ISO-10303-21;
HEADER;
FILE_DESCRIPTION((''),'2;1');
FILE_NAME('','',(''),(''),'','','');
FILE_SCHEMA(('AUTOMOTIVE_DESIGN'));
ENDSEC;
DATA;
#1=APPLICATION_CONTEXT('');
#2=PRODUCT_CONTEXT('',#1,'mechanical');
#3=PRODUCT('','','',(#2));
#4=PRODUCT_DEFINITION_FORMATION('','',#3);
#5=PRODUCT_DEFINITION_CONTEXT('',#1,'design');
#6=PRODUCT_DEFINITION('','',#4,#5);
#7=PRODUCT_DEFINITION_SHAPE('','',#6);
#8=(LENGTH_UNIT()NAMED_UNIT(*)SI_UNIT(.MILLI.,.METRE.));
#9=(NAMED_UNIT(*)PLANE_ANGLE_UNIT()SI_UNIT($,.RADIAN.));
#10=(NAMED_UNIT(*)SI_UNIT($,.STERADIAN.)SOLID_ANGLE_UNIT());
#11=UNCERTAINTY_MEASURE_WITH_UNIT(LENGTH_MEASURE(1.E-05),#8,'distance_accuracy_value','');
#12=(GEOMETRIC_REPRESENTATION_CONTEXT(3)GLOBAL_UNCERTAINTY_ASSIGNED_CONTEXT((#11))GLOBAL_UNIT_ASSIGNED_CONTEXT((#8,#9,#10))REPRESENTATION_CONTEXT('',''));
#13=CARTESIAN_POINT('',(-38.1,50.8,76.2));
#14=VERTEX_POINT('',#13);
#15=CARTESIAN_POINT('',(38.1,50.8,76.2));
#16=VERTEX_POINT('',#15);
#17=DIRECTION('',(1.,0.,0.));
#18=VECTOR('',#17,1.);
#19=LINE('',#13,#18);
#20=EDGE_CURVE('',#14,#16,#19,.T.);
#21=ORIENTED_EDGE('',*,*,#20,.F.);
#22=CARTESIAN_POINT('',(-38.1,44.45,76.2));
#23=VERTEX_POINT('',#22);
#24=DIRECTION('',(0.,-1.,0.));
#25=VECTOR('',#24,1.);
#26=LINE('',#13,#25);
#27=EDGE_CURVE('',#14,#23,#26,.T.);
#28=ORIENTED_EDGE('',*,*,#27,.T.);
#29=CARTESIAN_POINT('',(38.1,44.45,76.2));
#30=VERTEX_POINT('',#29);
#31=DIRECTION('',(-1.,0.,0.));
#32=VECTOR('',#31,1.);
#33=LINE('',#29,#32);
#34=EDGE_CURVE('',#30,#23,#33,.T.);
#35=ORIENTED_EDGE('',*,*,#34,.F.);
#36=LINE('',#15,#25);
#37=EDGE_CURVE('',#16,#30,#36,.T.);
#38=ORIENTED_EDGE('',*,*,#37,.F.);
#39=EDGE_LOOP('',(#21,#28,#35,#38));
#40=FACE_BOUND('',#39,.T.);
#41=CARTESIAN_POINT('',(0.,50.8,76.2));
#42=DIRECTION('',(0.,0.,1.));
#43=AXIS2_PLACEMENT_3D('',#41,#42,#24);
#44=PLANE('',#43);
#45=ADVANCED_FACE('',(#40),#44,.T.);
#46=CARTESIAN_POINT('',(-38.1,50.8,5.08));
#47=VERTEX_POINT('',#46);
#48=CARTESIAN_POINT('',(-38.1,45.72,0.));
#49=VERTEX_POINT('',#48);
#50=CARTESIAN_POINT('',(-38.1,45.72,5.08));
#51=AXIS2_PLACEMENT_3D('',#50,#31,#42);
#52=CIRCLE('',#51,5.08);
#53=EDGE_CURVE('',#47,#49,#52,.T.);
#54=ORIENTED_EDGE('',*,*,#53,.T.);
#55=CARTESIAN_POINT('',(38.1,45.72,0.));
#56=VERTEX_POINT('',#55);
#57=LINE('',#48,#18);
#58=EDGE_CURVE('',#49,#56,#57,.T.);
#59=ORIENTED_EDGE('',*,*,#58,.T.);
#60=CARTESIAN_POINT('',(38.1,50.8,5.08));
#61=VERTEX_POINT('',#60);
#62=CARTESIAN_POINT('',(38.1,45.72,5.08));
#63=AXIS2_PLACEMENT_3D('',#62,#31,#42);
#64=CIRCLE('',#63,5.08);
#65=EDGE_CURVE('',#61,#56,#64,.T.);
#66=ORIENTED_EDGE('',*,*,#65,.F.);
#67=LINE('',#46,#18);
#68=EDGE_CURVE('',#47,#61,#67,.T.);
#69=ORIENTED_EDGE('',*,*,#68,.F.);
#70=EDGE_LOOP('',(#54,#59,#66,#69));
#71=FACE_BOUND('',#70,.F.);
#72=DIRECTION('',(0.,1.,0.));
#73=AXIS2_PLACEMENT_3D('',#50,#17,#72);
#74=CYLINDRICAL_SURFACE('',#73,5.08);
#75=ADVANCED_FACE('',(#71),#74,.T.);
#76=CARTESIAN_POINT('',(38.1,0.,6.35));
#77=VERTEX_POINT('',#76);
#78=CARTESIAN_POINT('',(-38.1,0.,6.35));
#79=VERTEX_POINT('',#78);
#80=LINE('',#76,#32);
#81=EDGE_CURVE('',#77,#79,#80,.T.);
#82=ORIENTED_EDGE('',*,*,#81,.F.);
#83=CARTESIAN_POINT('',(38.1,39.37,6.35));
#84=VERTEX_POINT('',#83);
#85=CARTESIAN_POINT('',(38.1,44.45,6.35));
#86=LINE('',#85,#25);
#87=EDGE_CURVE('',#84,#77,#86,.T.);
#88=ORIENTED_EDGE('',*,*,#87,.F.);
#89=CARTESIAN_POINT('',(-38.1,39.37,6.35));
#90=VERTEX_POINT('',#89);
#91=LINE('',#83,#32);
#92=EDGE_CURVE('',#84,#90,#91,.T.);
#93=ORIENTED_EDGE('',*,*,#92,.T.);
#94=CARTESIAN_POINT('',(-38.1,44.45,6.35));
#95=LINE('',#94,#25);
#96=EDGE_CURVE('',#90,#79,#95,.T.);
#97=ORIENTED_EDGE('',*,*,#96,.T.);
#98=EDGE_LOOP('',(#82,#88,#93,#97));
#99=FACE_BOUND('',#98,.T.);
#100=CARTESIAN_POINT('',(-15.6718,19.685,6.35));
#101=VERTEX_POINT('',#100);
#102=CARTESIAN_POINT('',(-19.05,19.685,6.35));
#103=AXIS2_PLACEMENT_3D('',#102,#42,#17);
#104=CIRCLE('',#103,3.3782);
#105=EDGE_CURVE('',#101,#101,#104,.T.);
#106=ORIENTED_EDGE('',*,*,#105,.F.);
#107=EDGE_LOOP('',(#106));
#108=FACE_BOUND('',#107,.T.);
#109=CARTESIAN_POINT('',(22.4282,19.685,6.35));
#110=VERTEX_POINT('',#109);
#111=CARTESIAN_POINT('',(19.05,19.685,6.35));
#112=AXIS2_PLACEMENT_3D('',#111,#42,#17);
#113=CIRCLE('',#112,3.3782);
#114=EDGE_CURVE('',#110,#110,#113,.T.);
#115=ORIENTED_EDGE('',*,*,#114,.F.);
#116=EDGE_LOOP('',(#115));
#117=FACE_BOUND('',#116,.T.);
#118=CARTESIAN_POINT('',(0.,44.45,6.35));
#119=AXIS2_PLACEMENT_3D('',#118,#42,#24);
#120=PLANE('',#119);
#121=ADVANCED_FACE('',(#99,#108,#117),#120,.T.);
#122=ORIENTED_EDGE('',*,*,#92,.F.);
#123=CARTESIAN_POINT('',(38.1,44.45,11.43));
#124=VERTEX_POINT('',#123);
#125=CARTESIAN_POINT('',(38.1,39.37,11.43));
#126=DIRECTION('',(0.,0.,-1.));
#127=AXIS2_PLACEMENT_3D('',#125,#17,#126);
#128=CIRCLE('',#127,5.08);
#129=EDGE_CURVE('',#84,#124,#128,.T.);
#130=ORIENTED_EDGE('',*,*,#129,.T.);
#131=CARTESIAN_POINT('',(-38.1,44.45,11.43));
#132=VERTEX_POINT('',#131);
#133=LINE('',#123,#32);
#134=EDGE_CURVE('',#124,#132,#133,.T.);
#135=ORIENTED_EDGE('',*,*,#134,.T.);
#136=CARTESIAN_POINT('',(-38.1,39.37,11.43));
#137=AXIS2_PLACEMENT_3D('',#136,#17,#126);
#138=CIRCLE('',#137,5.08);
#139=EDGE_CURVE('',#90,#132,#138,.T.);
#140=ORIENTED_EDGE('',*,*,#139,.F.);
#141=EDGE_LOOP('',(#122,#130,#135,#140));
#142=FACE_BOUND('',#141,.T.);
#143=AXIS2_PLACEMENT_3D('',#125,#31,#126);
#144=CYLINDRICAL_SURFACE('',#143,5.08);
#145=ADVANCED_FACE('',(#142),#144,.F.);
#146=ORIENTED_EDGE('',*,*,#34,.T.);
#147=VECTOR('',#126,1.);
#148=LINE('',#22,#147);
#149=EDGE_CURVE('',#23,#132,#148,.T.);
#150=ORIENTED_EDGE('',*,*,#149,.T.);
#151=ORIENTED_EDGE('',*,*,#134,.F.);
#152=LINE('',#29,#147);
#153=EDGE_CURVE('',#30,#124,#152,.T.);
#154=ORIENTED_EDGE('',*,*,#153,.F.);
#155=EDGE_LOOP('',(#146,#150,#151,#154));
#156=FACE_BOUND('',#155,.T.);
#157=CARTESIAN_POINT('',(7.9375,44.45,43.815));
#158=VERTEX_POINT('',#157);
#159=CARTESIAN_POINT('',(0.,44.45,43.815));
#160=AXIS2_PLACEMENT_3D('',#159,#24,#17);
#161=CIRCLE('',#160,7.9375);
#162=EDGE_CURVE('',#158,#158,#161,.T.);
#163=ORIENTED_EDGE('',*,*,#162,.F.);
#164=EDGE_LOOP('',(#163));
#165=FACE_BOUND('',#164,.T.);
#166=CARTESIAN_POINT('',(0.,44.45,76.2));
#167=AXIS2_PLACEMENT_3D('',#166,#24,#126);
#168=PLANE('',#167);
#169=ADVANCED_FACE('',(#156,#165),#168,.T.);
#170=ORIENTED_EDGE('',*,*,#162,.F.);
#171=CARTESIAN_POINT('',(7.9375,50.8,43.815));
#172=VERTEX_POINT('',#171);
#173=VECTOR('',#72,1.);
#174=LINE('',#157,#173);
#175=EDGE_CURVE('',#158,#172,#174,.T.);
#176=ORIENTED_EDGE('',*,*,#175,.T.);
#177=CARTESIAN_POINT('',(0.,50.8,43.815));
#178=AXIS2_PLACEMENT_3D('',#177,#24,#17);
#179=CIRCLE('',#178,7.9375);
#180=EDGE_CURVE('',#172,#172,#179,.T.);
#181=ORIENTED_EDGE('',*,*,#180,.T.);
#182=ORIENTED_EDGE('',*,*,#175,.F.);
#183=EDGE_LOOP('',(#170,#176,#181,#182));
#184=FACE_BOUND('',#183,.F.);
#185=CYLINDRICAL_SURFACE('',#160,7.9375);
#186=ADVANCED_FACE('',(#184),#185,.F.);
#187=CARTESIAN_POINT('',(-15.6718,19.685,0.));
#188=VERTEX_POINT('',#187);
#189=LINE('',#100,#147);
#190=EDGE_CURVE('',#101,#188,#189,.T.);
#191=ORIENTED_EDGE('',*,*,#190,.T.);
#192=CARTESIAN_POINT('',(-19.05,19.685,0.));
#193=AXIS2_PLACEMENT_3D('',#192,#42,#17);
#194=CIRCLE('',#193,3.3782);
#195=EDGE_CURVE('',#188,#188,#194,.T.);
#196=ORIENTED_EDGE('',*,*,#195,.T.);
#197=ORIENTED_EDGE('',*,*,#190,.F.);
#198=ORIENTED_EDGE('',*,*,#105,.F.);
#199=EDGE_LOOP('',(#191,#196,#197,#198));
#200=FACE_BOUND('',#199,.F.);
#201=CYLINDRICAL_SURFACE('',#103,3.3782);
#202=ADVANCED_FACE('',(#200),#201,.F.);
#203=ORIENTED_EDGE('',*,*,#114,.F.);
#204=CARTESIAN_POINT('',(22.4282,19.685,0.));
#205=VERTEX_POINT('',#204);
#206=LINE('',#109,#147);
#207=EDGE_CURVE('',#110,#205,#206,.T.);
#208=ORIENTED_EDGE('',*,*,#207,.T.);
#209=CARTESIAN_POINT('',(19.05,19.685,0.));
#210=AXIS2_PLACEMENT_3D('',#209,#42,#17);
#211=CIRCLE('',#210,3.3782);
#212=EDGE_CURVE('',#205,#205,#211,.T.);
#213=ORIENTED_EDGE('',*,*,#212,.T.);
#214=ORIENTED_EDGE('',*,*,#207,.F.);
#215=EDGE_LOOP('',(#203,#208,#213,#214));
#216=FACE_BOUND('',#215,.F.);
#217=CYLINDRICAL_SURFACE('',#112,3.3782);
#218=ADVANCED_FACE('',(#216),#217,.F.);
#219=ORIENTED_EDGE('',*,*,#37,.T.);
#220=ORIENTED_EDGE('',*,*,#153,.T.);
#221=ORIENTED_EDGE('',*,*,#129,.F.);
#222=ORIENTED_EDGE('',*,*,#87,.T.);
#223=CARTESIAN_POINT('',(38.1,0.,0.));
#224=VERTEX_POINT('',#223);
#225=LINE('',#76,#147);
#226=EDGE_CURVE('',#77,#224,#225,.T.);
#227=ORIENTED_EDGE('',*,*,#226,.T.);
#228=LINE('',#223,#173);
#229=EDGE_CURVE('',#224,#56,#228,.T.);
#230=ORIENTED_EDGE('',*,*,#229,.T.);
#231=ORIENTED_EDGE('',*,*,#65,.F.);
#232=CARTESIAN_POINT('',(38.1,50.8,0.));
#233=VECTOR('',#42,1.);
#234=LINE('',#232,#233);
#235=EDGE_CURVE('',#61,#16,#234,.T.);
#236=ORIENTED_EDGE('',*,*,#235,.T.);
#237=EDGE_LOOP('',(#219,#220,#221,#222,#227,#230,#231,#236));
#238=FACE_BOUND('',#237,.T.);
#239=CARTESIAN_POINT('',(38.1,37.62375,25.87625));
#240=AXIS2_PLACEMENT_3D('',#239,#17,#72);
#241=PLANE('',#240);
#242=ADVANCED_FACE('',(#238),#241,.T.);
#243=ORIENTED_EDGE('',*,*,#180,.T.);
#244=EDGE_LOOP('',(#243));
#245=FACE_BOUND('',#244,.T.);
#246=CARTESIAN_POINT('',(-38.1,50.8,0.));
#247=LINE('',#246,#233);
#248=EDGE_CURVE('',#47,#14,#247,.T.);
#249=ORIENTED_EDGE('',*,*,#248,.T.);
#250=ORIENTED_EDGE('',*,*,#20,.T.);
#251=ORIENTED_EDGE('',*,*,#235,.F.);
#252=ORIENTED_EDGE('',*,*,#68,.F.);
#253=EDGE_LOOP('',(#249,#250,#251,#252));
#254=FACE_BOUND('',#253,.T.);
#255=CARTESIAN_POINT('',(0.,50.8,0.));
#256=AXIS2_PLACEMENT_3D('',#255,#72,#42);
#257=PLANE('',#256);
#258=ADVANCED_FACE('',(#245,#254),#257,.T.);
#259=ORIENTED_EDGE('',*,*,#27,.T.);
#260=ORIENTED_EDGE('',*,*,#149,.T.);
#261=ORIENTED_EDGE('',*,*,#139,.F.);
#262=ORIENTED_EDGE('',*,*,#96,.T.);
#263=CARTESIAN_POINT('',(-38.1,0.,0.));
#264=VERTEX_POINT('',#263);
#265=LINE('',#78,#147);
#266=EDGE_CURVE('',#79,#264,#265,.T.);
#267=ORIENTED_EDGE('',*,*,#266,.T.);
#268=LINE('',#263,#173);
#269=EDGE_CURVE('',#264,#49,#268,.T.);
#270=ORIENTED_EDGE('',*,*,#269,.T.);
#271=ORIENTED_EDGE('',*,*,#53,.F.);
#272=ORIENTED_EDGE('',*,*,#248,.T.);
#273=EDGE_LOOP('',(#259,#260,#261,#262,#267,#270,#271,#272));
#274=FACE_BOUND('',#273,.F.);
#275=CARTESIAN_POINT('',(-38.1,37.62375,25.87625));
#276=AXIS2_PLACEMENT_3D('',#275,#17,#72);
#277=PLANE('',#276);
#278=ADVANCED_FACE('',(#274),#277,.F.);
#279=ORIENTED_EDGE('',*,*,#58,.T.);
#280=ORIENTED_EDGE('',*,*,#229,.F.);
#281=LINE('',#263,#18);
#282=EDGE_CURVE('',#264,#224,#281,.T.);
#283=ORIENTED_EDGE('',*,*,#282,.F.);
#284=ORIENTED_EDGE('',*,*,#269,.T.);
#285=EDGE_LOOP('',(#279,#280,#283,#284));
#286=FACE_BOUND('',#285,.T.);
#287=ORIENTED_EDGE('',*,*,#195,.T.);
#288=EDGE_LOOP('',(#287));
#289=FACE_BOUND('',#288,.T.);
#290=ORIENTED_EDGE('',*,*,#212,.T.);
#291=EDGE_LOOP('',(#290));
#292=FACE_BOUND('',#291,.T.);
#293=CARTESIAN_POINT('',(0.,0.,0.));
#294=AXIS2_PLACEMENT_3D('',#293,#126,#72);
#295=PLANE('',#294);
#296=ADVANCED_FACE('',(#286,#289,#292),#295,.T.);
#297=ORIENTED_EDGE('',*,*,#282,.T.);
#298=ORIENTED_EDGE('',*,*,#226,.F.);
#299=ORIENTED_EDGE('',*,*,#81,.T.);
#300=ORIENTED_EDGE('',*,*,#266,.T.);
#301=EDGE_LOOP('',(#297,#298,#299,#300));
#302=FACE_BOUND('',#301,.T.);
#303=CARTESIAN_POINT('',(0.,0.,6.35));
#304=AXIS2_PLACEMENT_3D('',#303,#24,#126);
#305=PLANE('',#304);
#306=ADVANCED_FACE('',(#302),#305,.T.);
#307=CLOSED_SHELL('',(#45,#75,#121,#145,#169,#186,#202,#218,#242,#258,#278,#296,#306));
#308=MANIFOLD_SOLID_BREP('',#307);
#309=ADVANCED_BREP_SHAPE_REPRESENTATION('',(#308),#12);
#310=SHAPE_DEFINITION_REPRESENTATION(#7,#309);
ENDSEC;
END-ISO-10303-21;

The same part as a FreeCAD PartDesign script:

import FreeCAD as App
import Part
import Sketcher

V = App.Vector
Q = App.Units.Quantity


def edges_at(feature, points):
    """Names of the edges that pass closest to the given points."""
    edges = feature.Shape.Edges
    near = lambda p: min(range(len(edges)), key=lambda i: edges[i].distToShape(Part.Vertex(*p))[0])
    return sorted({f"Edge{near(p) + 1}" for p in points})


def add_polygon(sketch, points):
    """Adds a closed chain of lines whose ends are joined by coincident constraints."""
    first, n = sketch.GeometryCount, len(points)
    for a, b in zip(points, points[1:] + points[:1]):
        sketch.addGeometry(Part.LineSegment(App.Vector(*a, 0), App.Vector(*b, 0)), False)
    for i in range(n):
        sketch.addConstraint(Sketcher.Constraint("Coincident", first + i, 2, first + (i + 1) % n, 1))

doc = App.newDocument("Part")
body = doc.addObject("PartDesign::Body", "Body")

sketch1 = body.newObject("Sketcher::SketchObject", "Sketch")
sketch1.AttachmentSupport = (doc.getObject("YZ_Plane"), [""])
sketch1.MapMode = "FlatFace"
add_polygon(sketch1, [(0, 6), (0, 0), (51, 0), (51, 76), (44, 76), (44, 6)])
sketch1.addConstraint([
    Sketcher.Constraint("Vertical", 0),
    Sketcher.Constraint("Horizontal", 1),
    Sketcher.Constraint("Vertical", 2),
    Sketcher.Constraint("Horizontal", 3),
    Sketcher.Constraint("Vertical", 4),
    Sketcher.Constraint("Horizontal", 5),
    Sketcher.Constraint("Coincident", 0, 2, -1, 1),
    Sketcher.Constraint("Equal", 3, 0),
    Sketcher.Constraint("DistanceX", 1, 1, 1, 2, Q("2 in")),
    Sketcher.Constraint("DistanceY", 2, 1, 2, 2, Q("3 in")),
    Sketcher.Constraint("DistanceX", 3, 2, 3, 1, Q("0.25 in")),
])
pad1 = body.newObject("PartDesign::Pad", "Pad")
pad1.Profile = sketch1
pad1.Length = Q("3 in")
pad1.Midplane = True
doc.recompute()

fillet = body.newObject("PartDesign::Fillet", "Fillet")
fillet.Base = (pad1, edges_at(pad1, [(0, 50.8, 0), (0, 44.45, 6.35)]))
fillet.Radius = Q("0.2 in")

sketch2 = body.newObject("Sketcher::SketchObject", "Sketch001")
sketch2.AttachmentSupport = (doc.getObject("XY_Plane"), [""])
sketch2.MapMode = "FlatFace"
sketch2.AttachmentOffset = App.Placement(V(0, 0, 0.25 * 25.4), App.Rotation())
sketch2.addGeometry([
    Part.Circle(V(19.1, 19.7, 0), V(0, 0, 1), 3.4),
    Part.Circle(V(-19.1, 19.7, 0), V(0, 0, 1), 3.4),
], False)
sketch2.addConstraint([
    Sketcher.Constraint("Equal", 0, 1),
    Sketcher.Constraint("Symmetric", 0, 3, 1, 3, -2),
    Sketcher.Constraint("Diameter", 0, Q("0.266 in")),
    Sketcher.Constraint("DistanceX", 1, 3, 0, 3, Q("1.5 in")),
    Sketcher.Constraint("DistanceY", -1, 1, 0, 3, Q("0.775 in")),
])
pocket1 = body.newObject("PartDesign::Pocket", "Pocket")
pocket1.Profile = sketch2
pocket1.Type = "ThroughAll"

sketch3 = body.newObject("Sketcher::SketchObject", "Sketch002")
sketch3.AttachmentSupport = (doc.getObject("XZ_Plane"), [""])
sketch3.MapMode = "FlatFace"
sketch3.AttachmentOffset = App.Placement(V(0, 0, -1.75 * 25.4), App.Rotation())
sketch3.addGeometry(Part.Circle(V(0, 44, 0), V(0, 0, 1), 8), False)
sketch3.addConstraint([
    Sketcher.Constraint("PointOnObject", 0, 3, -2),
    Sketcher.Constraint("Diameter", 0, Q("0.625 in")),
    Sketcher.Constraint("DistanceY", -1, 1, 0, 3, Q("1.725 in")),
])
pocket2 = body.newObject("PartDesign::Pocket", "Pocket001")
pocket2.Profile = sketch3
pocket2.Type = "ThroughAll"

doc.recompute()
